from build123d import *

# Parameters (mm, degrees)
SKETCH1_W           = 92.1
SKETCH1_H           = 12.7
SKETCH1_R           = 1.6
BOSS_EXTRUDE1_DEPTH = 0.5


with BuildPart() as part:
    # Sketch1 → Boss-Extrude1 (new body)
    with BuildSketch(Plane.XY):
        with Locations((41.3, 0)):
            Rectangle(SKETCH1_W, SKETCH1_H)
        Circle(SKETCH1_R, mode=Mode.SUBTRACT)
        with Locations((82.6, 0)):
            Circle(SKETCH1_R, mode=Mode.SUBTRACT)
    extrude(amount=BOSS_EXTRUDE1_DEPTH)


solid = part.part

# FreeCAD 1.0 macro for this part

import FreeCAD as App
import Part
import Sketcher

V = App.Vector

doc = App.newDocument("Part")
params = doc.addObject("Spreadsheet::Sheet", "Params")
for row, (alias, value) in enumerate([
    ("sketch1_diameter", "3.2 mm"),
    ("sketch1_width", "92.1 mm"),
    ("sketch1_height", "12.7 mm"),
    ("pad1_length", "0.5 mm"),
], start=1):
    params.set(f"A{row}", alias)
    params.set(f"B{row}", "=" + value)
    params.setAlias(f"B{row}", alias)

body = doc.addObject("PartDesign::Body", "Body")

# Sketch on XY plane
sketch1 = body.newObject("Sketcher::SketchObject", "Sketch")
sketch1.AttachmentSupport = (doc.getObject("XY_Plane"), [""])
sketch1.MapMode = "FlatFace"
sketch1.addGeometry(Part.LineSegment(V(-4.8, 6.3, 0), V(-4.8, -6.3, 0)), False)
sketch1.addGeometry(Part.LineSegment(V(-4.8, -6.3, 0), V(87.3, -6.3, 0)), False)
sketch1.addGeometry(Part.LineSegment(V(87.3, -6.3, 0), V(87.3, 6.3, 0)), False)
sketch1.addGeometry(Part.LineSegment(V(87.3, 6.3, 0), V(-4.8, 6.3, 0)), False)
sketch1.addGeometry(Part.Circle(V(0, 0, 0), V(0, 0, 1), 1.6), False)
sketch1.addGeometry(Part.Circle(V(82.6, 0, 0), V(0, 0, 1), 1.6), False)
sketch1.addConstraint(Sketcher.Constraint("Coincident", 0, 2, 1, 1))
sketch1.addConstraint(Sketcher.Constraint("Coincident", 1, 2, 2, 1))
sketch1.addConstraint(Sketcher.Constraint("Coincident", 2, 2, 3, 1))
sketch1.addConstraint(Sketcher.Constraint("Coincident", 3, 2, 0, 1))
sketch1.addConstraint(Sketcher.Constraint("Vertical", 0))
sketch1.addConstraint(Sketcher.Constraint("Horizontal", 1))
sketch1.addConstraint(Sketcher.Constraint("Vertical", 2))
sketch1.addConstraint(Sketcher.Constraint("Horizontal", 3))
sketch1.addConstraint(Sketcher.Constraint("Coincident", 4, 3, -1, 1))
sketch1.addConstraint(Sketcher.Constraint("Equal", 4, 5))
sketch1.addConstraint(Sketcher.Constraint("PointOnObject", 5, 3, -1))
sketch1.addConstraint(Sketcher.Constraint("Diameter", 4, 3.2))
sketch1.addConstraint(Sketcher.Constraint("DistanceX", 1, 1, 1, 2, 92.1))
sketch1.addConstraint(Sketcher.Constraint("DistanceY", 0, 2, 0, 1, 12.7))
sketch1.addConstraint(Sketcher.Constraint("DistanceX", -1, 1, 5, 3, 82.6))
sketch1.addConstraint(Sketcher.Constraint("DistanceX", 0, 2, -1, 1, 4.75))
sketch1.addConstraint(Sketcher.Constraint("DistanceY", 0, 2, -1, 1, 6.35))
sketch1.setExpression("Constraints[11]", "Params.sketch1_diameter")
sketch1.setExpression("Constraints[12]", "Params.sketch1_width")
sketch1.setExpression("Constraints[13]", "Params.sketch1_height")
pad1 = body.newObject("PartDesign::Pad", "Pad")
pad1.Profile = sketch1
pad1.setExpression("Length", "Params.pad1_length")

doc.recompute()
